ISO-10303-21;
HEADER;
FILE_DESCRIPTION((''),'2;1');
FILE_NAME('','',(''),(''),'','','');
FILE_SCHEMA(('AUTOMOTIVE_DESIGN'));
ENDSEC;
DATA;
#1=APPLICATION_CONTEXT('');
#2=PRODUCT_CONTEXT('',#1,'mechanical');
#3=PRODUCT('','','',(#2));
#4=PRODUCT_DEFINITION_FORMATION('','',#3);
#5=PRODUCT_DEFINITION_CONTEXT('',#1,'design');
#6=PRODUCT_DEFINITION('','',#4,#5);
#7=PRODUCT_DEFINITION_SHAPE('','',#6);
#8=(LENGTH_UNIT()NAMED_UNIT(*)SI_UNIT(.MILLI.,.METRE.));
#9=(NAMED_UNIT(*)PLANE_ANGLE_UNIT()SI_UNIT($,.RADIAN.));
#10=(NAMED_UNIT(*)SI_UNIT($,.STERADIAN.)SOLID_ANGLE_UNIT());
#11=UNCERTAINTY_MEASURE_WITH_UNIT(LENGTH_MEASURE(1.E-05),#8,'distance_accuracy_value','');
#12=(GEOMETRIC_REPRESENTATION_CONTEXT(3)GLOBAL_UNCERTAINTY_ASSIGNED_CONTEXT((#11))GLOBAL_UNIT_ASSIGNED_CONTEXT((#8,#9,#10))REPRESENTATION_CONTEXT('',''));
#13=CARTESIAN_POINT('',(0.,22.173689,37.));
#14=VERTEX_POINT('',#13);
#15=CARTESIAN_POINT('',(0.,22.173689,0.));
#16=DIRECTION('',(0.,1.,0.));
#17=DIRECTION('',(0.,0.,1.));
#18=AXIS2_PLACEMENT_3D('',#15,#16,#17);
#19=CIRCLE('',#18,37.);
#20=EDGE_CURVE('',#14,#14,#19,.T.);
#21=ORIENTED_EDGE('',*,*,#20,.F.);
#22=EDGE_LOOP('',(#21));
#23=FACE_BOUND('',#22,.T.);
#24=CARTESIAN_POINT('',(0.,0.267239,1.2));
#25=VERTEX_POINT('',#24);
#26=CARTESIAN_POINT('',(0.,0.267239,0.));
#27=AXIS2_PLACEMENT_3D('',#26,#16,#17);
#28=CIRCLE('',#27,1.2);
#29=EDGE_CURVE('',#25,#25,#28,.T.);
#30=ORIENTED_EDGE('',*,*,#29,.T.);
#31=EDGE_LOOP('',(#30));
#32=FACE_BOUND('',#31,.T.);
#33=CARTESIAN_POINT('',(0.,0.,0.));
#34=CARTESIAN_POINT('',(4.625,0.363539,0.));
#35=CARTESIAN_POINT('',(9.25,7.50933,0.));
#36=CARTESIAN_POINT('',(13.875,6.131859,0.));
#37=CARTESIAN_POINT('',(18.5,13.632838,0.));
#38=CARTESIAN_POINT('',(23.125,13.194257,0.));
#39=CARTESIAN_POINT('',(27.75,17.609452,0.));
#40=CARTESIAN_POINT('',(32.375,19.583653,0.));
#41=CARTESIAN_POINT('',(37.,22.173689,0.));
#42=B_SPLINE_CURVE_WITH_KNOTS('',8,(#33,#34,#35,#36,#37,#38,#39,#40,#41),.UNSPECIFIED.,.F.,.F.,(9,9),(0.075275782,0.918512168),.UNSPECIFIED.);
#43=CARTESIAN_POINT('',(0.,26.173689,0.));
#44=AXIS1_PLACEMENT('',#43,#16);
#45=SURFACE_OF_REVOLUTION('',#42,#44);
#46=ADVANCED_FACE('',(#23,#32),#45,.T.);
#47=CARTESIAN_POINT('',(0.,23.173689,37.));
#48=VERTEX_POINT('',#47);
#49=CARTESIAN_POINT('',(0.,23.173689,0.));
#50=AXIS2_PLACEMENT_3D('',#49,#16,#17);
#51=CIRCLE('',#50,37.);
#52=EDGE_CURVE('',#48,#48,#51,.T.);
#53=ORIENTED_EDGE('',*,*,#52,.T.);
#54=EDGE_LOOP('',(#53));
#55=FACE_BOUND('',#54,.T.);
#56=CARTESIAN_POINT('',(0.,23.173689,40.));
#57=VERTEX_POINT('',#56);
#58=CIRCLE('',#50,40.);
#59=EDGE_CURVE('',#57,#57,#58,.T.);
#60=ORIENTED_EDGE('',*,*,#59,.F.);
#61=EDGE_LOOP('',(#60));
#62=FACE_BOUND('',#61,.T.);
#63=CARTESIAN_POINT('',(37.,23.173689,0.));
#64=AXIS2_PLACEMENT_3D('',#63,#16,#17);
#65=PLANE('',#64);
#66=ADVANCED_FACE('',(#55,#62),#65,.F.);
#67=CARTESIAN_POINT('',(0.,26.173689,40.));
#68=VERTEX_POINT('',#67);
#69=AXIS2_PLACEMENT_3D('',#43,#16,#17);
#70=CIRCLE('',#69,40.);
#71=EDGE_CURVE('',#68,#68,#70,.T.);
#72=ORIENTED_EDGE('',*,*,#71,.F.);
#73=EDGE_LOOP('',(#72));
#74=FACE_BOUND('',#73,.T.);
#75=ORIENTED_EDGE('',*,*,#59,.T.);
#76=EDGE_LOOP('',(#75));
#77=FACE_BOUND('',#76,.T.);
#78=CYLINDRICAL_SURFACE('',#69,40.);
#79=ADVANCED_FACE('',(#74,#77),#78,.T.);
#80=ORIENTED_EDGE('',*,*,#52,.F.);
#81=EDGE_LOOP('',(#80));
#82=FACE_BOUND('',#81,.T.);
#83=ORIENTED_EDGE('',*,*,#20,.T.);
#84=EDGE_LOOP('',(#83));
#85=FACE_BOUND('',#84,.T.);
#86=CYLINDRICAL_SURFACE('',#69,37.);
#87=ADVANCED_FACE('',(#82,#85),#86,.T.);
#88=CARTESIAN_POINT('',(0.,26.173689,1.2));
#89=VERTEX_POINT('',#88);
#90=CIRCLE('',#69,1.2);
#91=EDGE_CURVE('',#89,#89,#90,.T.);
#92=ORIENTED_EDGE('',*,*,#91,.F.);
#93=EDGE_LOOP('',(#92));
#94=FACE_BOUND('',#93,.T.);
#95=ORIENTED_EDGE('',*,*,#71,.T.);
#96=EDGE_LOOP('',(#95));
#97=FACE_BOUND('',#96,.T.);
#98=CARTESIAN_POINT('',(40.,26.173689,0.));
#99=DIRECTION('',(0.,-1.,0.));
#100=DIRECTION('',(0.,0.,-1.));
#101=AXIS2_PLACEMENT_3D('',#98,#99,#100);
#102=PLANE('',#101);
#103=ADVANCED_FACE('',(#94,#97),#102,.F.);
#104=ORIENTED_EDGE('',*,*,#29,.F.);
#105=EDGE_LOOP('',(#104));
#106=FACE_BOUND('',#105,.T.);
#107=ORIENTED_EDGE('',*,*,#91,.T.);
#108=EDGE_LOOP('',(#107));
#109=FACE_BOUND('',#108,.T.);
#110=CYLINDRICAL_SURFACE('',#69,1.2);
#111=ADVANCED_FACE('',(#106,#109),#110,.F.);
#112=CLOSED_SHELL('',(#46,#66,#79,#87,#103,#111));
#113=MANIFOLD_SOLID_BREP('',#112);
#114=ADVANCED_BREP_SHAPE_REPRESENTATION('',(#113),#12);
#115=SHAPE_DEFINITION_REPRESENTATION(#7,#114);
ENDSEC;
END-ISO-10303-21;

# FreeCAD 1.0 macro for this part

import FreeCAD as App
import Part
import Sketcher

doc = App.newDocument("Part")
body = doc.addObject("PartDesign::Body", "Body")

# Sketch on XY plane
sketch1 = body.newObject("Sketcher::SketchObject", "Sketch")
sketch1.AttachmentSupport = (doc.getObject("XY_Plane"), [""])
sketch1.MapMode = "FlatFace"
sketch1.addGeometry(Part.LineSegment(App.Vector(1.2, 26.173689, 0), App.Vector(1.2, 21.173689, 0)), False)
sketch1.addGeometry(Part.LineSegment(App.Vector(1.2, 21.173689, 0), App.Vector(0, 21.173689, 0)), False)
sketch1.addGeometry(Part.LineSegment(App.Vector(0, 21.173689, 0), App.Vector(0, 0, 0)), False)
sketch1.addGeometry(Part.BSplineCurve([App.Vector(0, 0, 0), App.Vector(4.625, 0.363539, 0), App.Vector(9.25, 7.50933, 0), App.Vector(13.875, 6.131859, 0), App.Vector(18.5, 13.632838, 0), App.Vector(23.125, 13.194257, 0), App.Vector(27.75, 17.609452, 0), App.Vector(32.375, 19.583653, 0), App.Vector(37, 22.173689, 0)], [9, 9], [0.075275782, 0.918512168], False, 8, [1, 1, 1, 1, 1, 1, 1, 1, 1], False), False)
sketch1.addGeometry(Part.LineSegment(App.Vector(37, 22.173689, 0), App.Vector(37, 23.173689, 0)), False)
sketch1.addGeometry(Part.LineSegment(App.Vector(37, 23.173689, 0), App.Vector(40, 23.173689, 0)), False)
sketch1.addGeometry(Part.LineSegment(App.Vector(40, 23.173689, 0), App.Vector(40, 26.173689, 0)), False)
sketch1.addGeometry(Part.LineSegment(App.Vector(40, 26.173689, 0), App.Vector(1.2, 26.173689, 0)), False)
sketch1.addConstraint(Sketcher.Constraint("Block", 3))
sketch1.addConstraint(Sketcher.Constraint("Coincident", 0, 2, 1, 1))
sketch1.addConstraint(Sketcher.Constraint("Coincident", 1, 2, 2, 1))
sketch1.addConstraint(Sketcher.Constraint("Coincident", 2, 2, 3, 1))
sketch1.addConstraint(Sketcher.Constraint("Coincident", 3, 2, 4, 1))
sketch1.addConstraint(Sketcher.Constraint("Coincident", 4, 2, 5, 1))
sketch1.addConstraint(Sketcher.Constraint("Coincident", 5, 2, 6, 1))
sketch1.addConstraint(Sketcher.Constraint("Coincident", 6, 2, 7, 1))
sketch1.addConstraint(Sketcher.Constraint("Coincident", 7, 2, 0, 1))
sketch1.addConstraint(Sketcher.Constraint("Vertical", 0))
sketch1.addConstraint(Sketcher.Constraint("Horizontal", 1))
sketch1.addConstraint(Sketcher.Constraint("Vertical", 2))
sketch1.addConstraint(Sketcher.Constraint("Vertical", 4))
sketch1.addConstraint(Sketcher.Constraint("Horizontal", 5))
sketch1.addConstraint(Sketcher.Constraint("Vertical", 6))
sketch1.addConstraint(Sketcher.Constraint("Horizontal", 7))
sketch1.addConstraint(Sketcher.Constraint("Equal", 5, 6))
sketch1.addConstraint(Sketcher.Constraint("DistanceX", 5, 1, 5, 2, 3.0))
sketch1.addConstraint(Sketcher.Constraint("DistanceY", 0, 2, 0, 1, 5.0))
sketch1.addConstraint(Sketcher.Constraint("DistanceY", 4, 1, 4, 2, 1.0))
sketch1.addConstraint(Sketcher.Constraint("DistanceX", 1, 2, 1, 1, 1.2))
revolution = body.newObject("PartDesign::Revolution", "Revolution")
revolution.Profile = sketch1
revolution.ReferenceAxis = (sketch1, ["V_Axis"])
revolution.Angle = 360

# Sketch on XZ plane
sketch2 = body.newObject("Sketcher::SketchObject", "Sketch001")
sketch2.AttachmentSupport = (doc.getObject("XZ_Plane"), [""])
sketch2.MapMode = "FlatFace"
sketch2.AttachmentOffset = App.Placement(App.Vector(0, 0, -26.173689), App.Rotation())
sketch2.addGeometry(Part.Circle(App.Vector(0, 0, 0), App.Vector(0, 0, 1), 1.2), False)
sketch2.addConstraint(Sketcher.Constraint("Coincident", 0, 3, -1, 1))
sketch2.addConstraint(Sketcher.Constraint("Diameter", 0, 2.4))
pocket1 = body.newObject("PartDesign::Pocket", "Pocket")
pocket1.Profile = sketch2
pocket1.Type = "ThroughAll"
pocket1.Reversed = True

doc.recompute()
